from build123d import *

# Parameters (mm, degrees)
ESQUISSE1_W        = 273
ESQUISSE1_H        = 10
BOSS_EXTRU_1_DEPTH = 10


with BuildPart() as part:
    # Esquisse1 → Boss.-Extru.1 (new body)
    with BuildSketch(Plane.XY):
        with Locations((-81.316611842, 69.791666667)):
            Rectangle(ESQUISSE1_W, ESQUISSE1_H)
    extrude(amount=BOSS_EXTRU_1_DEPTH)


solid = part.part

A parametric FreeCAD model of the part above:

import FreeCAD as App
import Part
import Sketcher
from FreeCAD import Vector


def add_polygon(sketch, points):
    """Adds a closed chain of lines whose ends are joined by coincident constraints."""
    first, n = sketch.GeometryCount, len(points)
    for a, b in zip(points, points[1:] + points[:1]):
        sketch.addGeometry(Part.LineSegment(App.Vector(*a, 0), App.Vector(*b, 0)), False)
    for i in range(n):
        sketch.addConstraint(Sketcher.Constraint("Coincident", first + i, 2, first + (i + 1) % n, 1))

doc = App.newDocument("Part")
body = doc.addObject("PartDesign::Body", "Body")

# Sketch on XY plane
sketch1 = body.newObject("Sketcher::SketchObject", "Sketch")
sketch1.AttachmentSupport = (doc.getObject("XY_Plane"), [""])
sketch1.MapMode = "FlatFace"
add_polygon(sketch1, [(-218, 75), (-218, 65), (55, 65), (55, 75)])  # lines 0-3
sketch1.addConstraint(Sketcher.Constraint("Vertical", 0))
sketch1.addConstraint(Sketcher.Constraint("Horizontal", 1))
sketch1.addConstraint(Sketcher.Constraint("Vertical", 2))
sketch1.addConstraint(Sketcher.Constraint("Horizontal", 3))
sketch1.addConstraint(Sketcher.Constraint("DistanceX", 1, 1, 1, 2, 273.0))
sketch1.addConstraint(Sketcher.Constraint("DistanceY", 0, 2, 0, 1, 10.0))
sketch1.addConstraint(Sketcher.Constraint("DistanceX", 0, 2, -1, 1, 217.816612))
sketch1.addConstraint(Sketcher.Constraint("DistanceY", -1, 1, 0, 2, 64.791667))
pad1 = body.newObject("PartDesign::Pad", "Pad")
pad1.Profile = sketch1
pad1.Length = 10

doc.recompute()
